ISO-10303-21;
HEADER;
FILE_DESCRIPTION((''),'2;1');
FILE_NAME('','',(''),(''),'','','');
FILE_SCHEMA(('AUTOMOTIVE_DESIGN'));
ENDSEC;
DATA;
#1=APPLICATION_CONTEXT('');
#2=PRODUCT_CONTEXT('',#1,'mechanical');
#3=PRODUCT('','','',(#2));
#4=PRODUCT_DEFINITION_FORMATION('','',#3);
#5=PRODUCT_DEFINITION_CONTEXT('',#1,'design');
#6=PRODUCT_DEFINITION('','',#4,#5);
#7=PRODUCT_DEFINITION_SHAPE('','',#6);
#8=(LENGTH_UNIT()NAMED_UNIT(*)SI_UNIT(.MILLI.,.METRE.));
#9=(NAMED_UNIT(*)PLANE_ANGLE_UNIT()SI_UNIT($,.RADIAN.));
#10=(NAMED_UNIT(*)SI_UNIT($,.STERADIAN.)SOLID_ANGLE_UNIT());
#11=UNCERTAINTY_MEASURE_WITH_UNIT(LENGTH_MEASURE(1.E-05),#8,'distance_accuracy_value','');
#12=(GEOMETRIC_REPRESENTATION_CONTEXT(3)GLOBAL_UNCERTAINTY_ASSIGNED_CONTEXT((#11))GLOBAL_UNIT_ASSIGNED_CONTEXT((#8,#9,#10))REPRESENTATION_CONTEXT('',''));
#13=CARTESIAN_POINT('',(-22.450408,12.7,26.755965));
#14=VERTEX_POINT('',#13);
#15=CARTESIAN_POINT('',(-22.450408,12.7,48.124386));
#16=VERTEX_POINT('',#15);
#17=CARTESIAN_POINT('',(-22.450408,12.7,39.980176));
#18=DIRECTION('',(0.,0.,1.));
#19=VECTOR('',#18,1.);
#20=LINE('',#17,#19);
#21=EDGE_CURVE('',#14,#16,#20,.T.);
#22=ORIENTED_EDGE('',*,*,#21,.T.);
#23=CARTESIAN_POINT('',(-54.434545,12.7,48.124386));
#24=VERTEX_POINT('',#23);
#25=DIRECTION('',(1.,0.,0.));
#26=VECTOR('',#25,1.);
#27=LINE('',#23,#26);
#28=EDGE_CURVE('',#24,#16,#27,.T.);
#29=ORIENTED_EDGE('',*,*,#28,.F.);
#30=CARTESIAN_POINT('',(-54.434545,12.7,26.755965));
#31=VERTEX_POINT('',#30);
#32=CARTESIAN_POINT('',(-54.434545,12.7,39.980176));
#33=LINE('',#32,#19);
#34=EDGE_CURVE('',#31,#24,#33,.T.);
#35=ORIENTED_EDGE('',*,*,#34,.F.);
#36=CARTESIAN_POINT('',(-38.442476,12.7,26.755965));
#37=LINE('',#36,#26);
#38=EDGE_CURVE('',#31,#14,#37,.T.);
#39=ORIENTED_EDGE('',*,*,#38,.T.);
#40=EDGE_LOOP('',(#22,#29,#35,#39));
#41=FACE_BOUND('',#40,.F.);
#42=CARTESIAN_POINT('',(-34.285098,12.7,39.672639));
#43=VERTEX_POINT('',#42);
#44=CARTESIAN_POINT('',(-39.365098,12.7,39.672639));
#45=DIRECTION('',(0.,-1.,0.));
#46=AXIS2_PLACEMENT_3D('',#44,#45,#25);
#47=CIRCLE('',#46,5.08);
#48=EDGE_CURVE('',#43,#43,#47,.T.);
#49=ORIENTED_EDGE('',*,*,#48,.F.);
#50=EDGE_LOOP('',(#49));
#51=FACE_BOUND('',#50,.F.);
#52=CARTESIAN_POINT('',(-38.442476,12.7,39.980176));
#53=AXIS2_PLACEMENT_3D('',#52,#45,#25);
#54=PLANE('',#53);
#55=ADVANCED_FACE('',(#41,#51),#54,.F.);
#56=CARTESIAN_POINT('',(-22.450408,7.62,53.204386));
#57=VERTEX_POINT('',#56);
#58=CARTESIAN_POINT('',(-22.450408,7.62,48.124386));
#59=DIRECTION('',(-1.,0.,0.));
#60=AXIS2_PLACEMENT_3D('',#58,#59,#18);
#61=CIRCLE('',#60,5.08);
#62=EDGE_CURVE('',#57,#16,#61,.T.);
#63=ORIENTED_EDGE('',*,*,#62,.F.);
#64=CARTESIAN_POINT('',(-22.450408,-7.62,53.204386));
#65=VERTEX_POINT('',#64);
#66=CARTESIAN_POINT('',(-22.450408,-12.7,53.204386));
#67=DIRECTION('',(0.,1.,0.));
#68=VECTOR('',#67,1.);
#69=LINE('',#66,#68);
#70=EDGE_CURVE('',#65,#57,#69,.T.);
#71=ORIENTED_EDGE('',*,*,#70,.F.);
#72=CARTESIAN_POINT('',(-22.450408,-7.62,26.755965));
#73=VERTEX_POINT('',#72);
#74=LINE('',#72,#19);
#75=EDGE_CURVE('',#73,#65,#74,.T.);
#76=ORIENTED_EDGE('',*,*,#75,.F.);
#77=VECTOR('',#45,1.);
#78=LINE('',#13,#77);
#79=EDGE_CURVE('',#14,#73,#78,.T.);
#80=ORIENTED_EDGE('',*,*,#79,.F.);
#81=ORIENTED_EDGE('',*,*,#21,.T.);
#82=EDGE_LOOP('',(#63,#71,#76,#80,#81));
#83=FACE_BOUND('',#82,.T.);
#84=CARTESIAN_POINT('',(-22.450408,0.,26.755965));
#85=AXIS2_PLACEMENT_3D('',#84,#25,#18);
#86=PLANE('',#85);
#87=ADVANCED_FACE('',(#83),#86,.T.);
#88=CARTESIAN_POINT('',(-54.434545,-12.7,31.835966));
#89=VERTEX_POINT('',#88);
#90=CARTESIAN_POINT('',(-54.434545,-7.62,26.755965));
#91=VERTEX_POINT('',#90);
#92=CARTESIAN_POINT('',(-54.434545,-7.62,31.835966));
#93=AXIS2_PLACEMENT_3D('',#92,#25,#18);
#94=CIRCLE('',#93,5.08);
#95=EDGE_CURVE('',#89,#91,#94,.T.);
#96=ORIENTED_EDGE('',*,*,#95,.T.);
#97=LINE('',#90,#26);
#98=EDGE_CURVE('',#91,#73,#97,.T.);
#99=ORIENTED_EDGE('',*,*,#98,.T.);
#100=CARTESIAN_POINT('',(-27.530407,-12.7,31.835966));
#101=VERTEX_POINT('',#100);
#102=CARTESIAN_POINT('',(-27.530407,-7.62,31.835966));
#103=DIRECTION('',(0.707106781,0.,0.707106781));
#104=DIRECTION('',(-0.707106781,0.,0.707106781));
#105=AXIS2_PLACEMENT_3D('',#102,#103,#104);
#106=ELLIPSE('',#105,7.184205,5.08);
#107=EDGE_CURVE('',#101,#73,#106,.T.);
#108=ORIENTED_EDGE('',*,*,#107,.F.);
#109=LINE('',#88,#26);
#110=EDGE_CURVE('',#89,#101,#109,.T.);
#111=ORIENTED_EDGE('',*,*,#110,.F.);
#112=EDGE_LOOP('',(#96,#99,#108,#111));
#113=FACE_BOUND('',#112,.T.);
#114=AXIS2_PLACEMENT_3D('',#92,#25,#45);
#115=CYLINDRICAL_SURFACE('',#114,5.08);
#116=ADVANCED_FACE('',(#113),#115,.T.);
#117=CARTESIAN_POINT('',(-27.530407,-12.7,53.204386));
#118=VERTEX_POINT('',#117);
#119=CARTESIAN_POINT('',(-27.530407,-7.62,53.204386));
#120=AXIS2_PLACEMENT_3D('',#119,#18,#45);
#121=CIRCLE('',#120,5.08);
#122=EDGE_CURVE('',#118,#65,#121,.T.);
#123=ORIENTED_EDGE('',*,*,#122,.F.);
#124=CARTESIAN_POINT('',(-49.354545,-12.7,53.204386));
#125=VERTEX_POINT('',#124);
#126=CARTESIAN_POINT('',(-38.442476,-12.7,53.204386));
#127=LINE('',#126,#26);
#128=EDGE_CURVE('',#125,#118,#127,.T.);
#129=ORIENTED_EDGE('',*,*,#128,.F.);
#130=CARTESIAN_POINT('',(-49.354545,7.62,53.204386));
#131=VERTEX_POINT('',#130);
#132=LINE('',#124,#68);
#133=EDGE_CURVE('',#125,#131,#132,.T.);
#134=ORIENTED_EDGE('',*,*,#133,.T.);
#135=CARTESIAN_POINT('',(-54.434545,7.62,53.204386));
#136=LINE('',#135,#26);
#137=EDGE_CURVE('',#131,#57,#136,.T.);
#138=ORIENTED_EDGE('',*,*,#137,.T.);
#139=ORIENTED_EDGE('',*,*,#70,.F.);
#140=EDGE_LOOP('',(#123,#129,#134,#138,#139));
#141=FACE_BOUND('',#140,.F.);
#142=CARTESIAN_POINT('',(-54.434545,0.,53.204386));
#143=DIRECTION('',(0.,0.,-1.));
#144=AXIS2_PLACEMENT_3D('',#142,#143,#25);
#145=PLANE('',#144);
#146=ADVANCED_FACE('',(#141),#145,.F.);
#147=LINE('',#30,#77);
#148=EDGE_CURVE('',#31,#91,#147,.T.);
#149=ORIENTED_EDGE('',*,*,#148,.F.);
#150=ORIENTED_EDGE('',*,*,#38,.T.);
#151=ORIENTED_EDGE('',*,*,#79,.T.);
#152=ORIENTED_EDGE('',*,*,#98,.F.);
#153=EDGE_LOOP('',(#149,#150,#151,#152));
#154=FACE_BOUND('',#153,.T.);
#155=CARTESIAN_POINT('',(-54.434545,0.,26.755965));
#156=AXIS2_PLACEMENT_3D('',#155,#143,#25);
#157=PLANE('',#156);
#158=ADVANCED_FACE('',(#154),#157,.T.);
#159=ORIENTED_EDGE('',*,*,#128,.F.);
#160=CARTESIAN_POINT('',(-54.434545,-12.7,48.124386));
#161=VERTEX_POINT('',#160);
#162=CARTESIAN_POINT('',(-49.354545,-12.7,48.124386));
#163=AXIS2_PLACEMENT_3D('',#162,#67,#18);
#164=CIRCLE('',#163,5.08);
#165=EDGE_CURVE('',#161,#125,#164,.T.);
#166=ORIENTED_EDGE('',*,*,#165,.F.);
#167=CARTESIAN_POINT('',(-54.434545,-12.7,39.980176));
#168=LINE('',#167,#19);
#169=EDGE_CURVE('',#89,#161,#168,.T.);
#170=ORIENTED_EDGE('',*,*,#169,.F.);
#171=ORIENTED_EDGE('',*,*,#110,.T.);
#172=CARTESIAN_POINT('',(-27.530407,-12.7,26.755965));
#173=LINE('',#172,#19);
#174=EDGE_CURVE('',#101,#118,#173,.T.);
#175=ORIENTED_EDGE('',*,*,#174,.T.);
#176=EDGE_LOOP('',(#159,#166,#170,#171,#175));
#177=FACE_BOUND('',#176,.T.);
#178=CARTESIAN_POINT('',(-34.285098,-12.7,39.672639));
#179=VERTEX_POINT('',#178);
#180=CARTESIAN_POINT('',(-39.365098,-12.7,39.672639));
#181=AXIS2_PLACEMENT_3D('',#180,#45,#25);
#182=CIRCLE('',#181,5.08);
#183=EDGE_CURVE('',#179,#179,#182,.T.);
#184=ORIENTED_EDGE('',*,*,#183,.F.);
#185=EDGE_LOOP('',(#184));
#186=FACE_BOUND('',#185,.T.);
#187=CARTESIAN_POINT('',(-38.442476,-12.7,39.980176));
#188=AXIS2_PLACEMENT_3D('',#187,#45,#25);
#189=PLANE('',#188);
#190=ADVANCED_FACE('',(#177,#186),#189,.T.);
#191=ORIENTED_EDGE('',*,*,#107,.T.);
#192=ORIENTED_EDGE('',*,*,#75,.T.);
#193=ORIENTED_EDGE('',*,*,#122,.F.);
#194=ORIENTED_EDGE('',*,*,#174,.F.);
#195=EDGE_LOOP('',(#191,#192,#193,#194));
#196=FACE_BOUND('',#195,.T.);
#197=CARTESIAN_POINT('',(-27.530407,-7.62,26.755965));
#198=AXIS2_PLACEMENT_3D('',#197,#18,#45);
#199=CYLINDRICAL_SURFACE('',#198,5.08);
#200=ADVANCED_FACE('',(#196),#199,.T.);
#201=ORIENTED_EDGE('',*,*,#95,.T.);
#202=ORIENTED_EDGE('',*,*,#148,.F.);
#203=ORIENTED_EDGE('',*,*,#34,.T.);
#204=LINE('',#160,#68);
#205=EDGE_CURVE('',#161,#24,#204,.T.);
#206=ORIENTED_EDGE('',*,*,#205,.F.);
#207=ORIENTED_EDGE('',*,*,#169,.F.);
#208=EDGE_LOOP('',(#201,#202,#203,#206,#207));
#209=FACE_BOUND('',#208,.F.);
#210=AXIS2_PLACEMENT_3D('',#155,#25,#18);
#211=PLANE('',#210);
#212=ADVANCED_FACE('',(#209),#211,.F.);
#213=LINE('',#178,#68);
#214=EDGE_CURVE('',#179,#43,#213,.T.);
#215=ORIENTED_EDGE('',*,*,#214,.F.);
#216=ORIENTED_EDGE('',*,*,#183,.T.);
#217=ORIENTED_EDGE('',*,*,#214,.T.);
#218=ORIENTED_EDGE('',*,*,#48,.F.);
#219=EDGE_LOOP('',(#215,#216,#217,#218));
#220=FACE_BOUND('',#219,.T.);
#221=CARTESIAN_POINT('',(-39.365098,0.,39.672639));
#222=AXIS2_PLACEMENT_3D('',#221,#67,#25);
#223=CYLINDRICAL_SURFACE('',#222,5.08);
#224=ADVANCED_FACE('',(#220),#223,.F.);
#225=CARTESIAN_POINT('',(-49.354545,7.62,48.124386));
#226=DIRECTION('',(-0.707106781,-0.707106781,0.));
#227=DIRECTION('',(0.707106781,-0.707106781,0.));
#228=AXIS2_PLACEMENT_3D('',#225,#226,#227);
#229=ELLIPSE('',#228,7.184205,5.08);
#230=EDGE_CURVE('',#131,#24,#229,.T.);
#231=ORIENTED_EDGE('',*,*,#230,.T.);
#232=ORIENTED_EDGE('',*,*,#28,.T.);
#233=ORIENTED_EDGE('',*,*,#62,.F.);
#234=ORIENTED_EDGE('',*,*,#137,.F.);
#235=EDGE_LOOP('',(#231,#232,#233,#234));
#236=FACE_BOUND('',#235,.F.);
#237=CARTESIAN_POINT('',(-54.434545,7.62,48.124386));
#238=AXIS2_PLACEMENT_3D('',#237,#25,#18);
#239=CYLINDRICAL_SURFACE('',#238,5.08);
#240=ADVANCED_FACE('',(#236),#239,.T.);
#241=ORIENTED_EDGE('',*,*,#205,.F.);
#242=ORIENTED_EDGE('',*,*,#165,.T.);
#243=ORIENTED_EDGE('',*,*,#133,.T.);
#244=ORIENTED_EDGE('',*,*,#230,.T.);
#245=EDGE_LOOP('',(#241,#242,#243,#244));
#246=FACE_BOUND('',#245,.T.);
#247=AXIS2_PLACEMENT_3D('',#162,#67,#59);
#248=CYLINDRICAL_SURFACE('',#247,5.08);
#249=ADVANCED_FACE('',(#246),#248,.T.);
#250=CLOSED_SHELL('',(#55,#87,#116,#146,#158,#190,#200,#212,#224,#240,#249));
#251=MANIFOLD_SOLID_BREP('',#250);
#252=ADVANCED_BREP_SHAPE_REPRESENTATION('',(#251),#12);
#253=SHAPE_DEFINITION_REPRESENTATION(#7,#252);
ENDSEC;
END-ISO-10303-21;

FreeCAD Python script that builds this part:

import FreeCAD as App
import Part
import Sketcher
from FreeCAD import Vector
Q = App.Units.Quantity


def edges_at(feature, points):
    """Names of the edges that pass closest to the given points."""
    edges = feature.Shape.Edges
    near = lambda p: min(range(len(edges)), key=lambda i: edges[i].distToShape(Part.Vertex(*p))[0])
    return sorted({f"Edge{near(p) + 1}" for p in points})

doc = App.newDocument("Part")
params = doc.addObject("Spreadsheet::Sheet", "Params")
for row, (alias, value) in enumerate([
    ("sketch1_diameter", "0.4 in"),
    ("pad1_length", "1 in"),
    ("fillet_radius", "0.2 in"),
], start=1):
    params.set(f"A{row}", alias)
    params.set(f"B{row}", "=" + value)
    params.setAlias(f"B{row}", alias)

body = doc.addObject("PartDesign::Body", "Body")

# Sketch on XZ plane
sketch1 = body.newObject("Sketcher::SketchObject", "Sketch")
sketch1.AttachmentSupport = (doc.getObject("XZ_Plane"), [""])
sketch1.MapMode = "FlatFace"
sketch1.addGeometry([
    Part.LineSegment(Vector(-54, 53, 0), Vector(-54, 27, 0)),  # 0
    Part.LineSegment(Vector(-54, 27, 0), Vector(-22, 27, 0)),  # 1
    Part.LineSegment(Vector(-22, 27, 0), Vector(-22, 53, 0)),  # 2
    Part.LineSegment(Vector(-22, 53, 0), Vector(-54, 53, 0)),  # 3
    Part.Circle(Vector(-39, 40, 0), Vector(0, 0, 1), 5),  # 4
], False)
sketch1.addConstraint([
    Sketcher.Constraint("Coincident", 0, 2, 1, 1),
    Sketcher.Constraint("Coincident", 1, 2, 2, 1),
    Sketcher.Constraint("Coincident", 2, 2, 3, 1),
    Sketcher.Constraint("Coincident", 3, 2, 0, 1),
    Sketcher.Constraint("Vertical", 0),
    Sketcher.Constraint("Horizontal", 1),
    Sketcher.Constraint("Vertical", 2),
    Sketcher.Constraint("Horizontal", 3),
    Sketcher.Constraint("Diameter", 4, Q("0.4 in")),
    Sketcher.Constraint("DistanceY", 0, 2, 0, 1, Q("26.448421 mm")),
    Sketcher.Constraint("DistanceX", 4, 3, -1, 1, Q("39.365098 mm")),
    Sketcher.Constraint("DistanceX", 1, 1, 1, 2, Q("31.984137 mm")),
    Sketcher.Constraint("DistanceY", -1, 1, 4, 3, Q("39.672639 mm")),
    Sketcher.Constraint("DistanceX", 4, 3, 1, 2, Q("16.914691 mm")),
    Sketcher.Constraint("DistanceY", -1, 1, 0, 2, Q("26.755965 mm")),
])
sketch1.setExpression("Constraints[8]", "Params.sketch1_diameter")
pad1 = body.newObject("PartDesign::Pad", "Pad")
pad1.Profile = sketch1
pad1.setExpression("Length", "Params.pad1_length")
pad1.Midplane = True
doc.recompute()

fillet = body.newObject("PartDesign::Fillet", "Fillet")
fillet.Base = (pad1, edges_at(pad1, [
    (-38.442, 12.7, 53.204),
    (-54.435, 0, 53.204),
    (-22.45, -12.7, 39.98),
    (-38.442, -12.7, 26.756),
]))
fillet.setExpression("Radius", "Params.fillet_radius")

doc.recompute()
